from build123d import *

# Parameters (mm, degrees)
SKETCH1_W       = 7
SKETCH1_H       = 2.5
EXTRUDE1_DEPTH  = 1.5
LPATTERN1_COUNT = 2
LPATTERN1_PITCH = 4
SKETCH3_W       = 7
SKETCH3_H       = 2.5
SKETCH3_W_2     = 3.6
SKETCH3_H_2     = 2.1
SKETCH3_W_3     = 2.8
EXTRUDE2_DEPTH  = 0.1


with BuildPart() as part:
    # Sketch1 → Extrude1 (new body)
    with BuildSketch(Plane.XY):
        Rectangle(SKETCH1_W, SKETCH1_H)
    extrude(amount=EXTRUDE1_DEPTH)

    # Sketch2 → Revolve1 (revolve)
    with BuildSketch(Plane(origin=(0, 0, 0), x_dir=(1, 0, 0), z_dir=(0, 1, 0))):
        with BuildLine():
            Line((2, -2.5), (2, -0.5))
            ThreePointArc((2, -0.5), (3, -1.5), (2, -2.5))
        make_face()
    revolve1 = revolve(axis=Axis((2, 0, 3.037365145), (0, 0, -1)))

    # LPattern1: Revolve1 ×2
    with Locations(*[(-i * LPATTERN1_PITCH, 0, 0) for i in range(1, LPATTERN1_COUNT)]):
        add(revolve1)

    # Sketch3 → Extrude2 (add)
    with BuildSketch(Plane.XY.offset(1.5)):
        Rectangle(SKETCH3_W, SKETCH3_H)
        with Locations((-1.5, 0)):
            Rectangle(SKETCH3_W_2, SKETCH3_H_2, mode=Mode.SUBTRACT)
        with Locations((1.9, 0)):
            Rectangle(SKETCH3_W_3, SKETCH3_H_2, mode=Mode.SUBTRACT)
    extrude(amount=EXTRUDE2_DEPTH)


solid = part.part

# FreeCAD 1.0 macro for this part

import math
import FreeCAD as App
import Part
import Sketcher

V = App.Vector
Q = App.Units.Quantity

doc = App.newDocument("Part")
body = doc.addObject("PartDesign::Body", "Body")

sketch1 = body.newObject("Sketcher::SketchObject", "Sketch")
sketch1.AttachmentSupport = (doc.getObject("XY_Plane"), [""])
sketch1.MapMode = "FlatFace"
sketch1.addGeometry(Part.LineSegment(V(-3.5, 1.2, 0), V(-3.5, -1.2, 0)), False)
sketch1.addGeometry(Part.LineSegment(V(-3.5, -1.2, 0), V(3.5, -1.2, 0)), False)
sketch1.addGeometry(Part.LineSegment(V(3.5, -1.2, 0), V(3.5, 1.2, 0)), False)
sketch1.addGeometry(Part.LineSegment(V(3.5, 1.2, 0), V(-3.5, 1.2, 0)), False)
sketch1.addConstraint(Sketcher.Constraint("Coincident", 0, 2, 1, 1))
sketch1.addConstraint(Sketcher.Constraint("Coincident", 1, 2, 2, 1))
sketch1.addConstraint(Sketcher.Constraint("Coincident", 2, 2, 3, 1))
sketch1.addConstraint(Sketcher.Constraint("Coincident", 3, 2, 0, 1))
sketch1.addConstraint(Sketcher.Constraint("Vertical", 0))
sketch1.addConstraint(Sketcher.Constraint("Horizontal", 1))
sketch1.addConstraint(Sketcher.Constraint("Vertical", 2))
sketch1.addConstraint(Sketcher.Constraint("Horizontal", 3))
sketch1.addConstraint(Sketcher.Constraint("Symmetric", 0, 2, 2, 2, -1, 1))
sketch1.addConstraint(Sketcher.Constraint("DistanceX", 1, 1, 1, 2, Q("7 mm")))
sketch1.addConstraint(Sketcher.Constraint("DistanceY", 0, 2, 0, 1, Q("2.5 mm")))
pad1 = body.newObject("PartDesign::Pad", "Pad")
pad1.Profile = sketch1
pad1.Length = 1.5

sketch2 = body.newObject("Sketcher::SketchObject", "Sketch001")
sketch2.AttachmentSupport = (doc.getObject("XZ_Plane"), [""])
sketch2.MapMode = "FlatFace"
sketch2.addGeometry(Part.LineSegment(V(2, 0.5, 0), V(2, 2.5, 0)), False)
sketch2.addGeometry(Part.ArcOfCircle(Part.Circle(V(2, 1.5, 0), V(0, 0, 1), 1), math.radians(-90), math.radians(90)), False)
sketch2.addGeometry(Part.LineSegment(V(2, 2.5, 0), V(2, 0.5, 0)), True)
sketch2.addConstraint(Sketcher.Constraint("Coincident", 0, 1, 1, 1))
sketch2.addConstraint(Sketcher.Constraint("Coincident", 1, 2, 0, 2))
sketch2.addConstraint(Sketcher.Constraint("Vertical", 0))
sketch2.addConstraint(Sketcher.Constraint("Vertical", 2))
sketch2.addConstraint(Sketcher.Constraint("Coincident", 2, 1, 1, 2))
sketch2.addConstraint(Sketcher.Constraint("Vertical", 1, 3, 0, 1))
sketch2.addConstraint(Sketcher.Constraint("Equal", 0, 2))
sketch2.addConstraint(Sketcher.Constraint("Radius", 1, Q("1 mm")))
sketch2.addConstraint(Sketcher.Constraint("DistanceX", -1, 1, 1, 3, Q("2 mm")))
sketch2.addConstraint(Sketcher.Constraint("DistanceY", -1, 1, 1, 3, Q("1.5 mm")))
revolution = body.newObject("PartDesign::Revolution", "Revolution")
revolution.Profile = sketch2
revolution.ReferenceAxis = (sketch2, ["Axis0"])
revolution.Angle = 360
doc.recompute()

linearpattern = body.newObject("PartDesign::LinearPattern", "LinearPattern")
linearpattern.Originals = [revolution]
linearpattern.Direction = (doc.getObject("X_Axis"), [""])
linearpattern.Mode = "offset"
linearpattern.Offset = 4
linearpattern.Occurrences = 2
linearpattern.Reversed = True
body.Tip = linearpattern

sketch3 = body.newObject("Sketcher::SketchObject", "Sketch002")
sketch3.AttachmentSupport = (doc.getObject("XY_Plane"), [""])
sketch3.MapMode = "FlatFace"
sketch3.AttachmentOffset = App.Placement(V(0, 0, 1.5), App.Rotation())
sketch3.addGeometry(Part.LineSegment(V(-3.5, 1.2, 0), V(-3.5, -1.2, 0)), False)
sketch3.addGeometry(Part.LineSegment(V(-3.5, -1.2, 0), V(3.5, -1.2, 0)), False)
sketch3.addGeometry(Part.LineSegment(V(3.5, -1.2, 0), V(3.5, 1.2, 0)), False)
sketch3.addGeometry(Part.LineSegment(V(3.5, 1.2, 0), V(-3.5, 1.2, 0)), False)
sketch3.addGeometry(Part.LineSegment(V(0.3, -1.1, 0), V(-3.3, -1.1, 0)), False)
sketch3.addGeometry(Part.LineSegment(V(-3.3, -1.1, 0), V(-3.3, 1.1, 0)), False)
sketch3.addGeometry(Part.LineSegment(V(-3.3, 1.1, 0), V(0.3, 1.1, 0)), False)
sketch3.addGeometry(Part.LineSegment(V(0.3, 1.1, 0), V(0.3, -1.1, 0)), False)
sketch3.addGeometry(Part.LineSegment(V(3.3, -1.1, 0), V(0.5, -1.1, 0)), False)
sketch3.addGeometry(Part.LineSegment(V(0.5, -1.1, 0), V(0.5, 1.1, 0)), False)
sketch3.addGeometry(Part.LineSegment(V(0.5, 1.1, 0), V(3.3, 1.1, 0)), False)
sketch3.addGeometry(Part.LineSegment(V(3.3, 1.1, 0), V(3.3, -1.1, 0)), False)
sketch3.addConstraint(Sketcher.Constraint("Coincident", 0, 2, 1, 1))
sketch3.addConstraint(Sketcher.Constraint("Coincident", 1, 2, 2, 1))
sketch3.addConstraint(Sketcher.Constraint("Coincident", 2, 2, 3, 1))
sketch3.addConstraint(Sketcher.Constraint("Coincident", 3, 2, 0, 1))
sketch3.addConstraint(Sketcher.Constraint("Coincident", 4, 2, 5, 1))
sketch3.addConstraint(Sketcher.Constraint("Coincident", 5, 2, 6, 1))
sketch3.addConstraint(Sketcher.Constraint("Coincident", 6, 2, 7, 1))
sketch3.addConstraint(Sketcher.Constraint("Coincident", 7, 2, 4, 1))
sketch3.addConstraint(Sketcher.Constraint("Coincident", 8, 2, 9, 1))
sketch3.addConstraint(Sketcher.Constraint("Coincident", 9, 2, 10, 1))
sketch3.addConstraint(Sketcher.Constraint("Coincident", 10, 2, 11, 1))
sketch3.addConstraint(Sketcher.Constraint("Coincident", 11, 2, 8, 1))
sketch3.addConstraint(Sketcher.Constraint("Vertical", 0))
sketch3.addConstraint(Sketcher.Constraint("Horizontal", 1))
sketch3.addConstraint(Sketcher.Constraint("Vertical", 2))
sketch3.addConstraint(Sketcher.Constraint("Horizontal", 3))
sketch3.addConstraint(Sketcher.Constraint("Horizontal", 4))
sketch3.addConstraint(Sketcher.Constraint("Vertical", 5))
sketch3.addConstraint(Sketcher.Constraint("Horizontal", 6))
sketch3.addConstraint(Sketcher.Constraint("Vertical", 7))
sketch3.addConstraint(Sketcher.Constraint("Horizontal", 8))
sketch3.addConstraint(Sketcher.Constraint("Vertical", 9))
sketch3.addConstraint(Sketcher.Constraint("Horizontal", 10))
sketch3.addConstraint(Sketcher.Constraint("Vertical", 11))
sketch3.addConstraint(Sketcher.Constraint("Symmetric", 0, 2, 2, 2, -1, 1))
sketch3.addConstraint(Sketcher.Constraint("Symmetric", 4, 2, 10, 2, -1, 1))
sketch3.addConstraint(Sketcher.Constraint("Horizontal", 7, 2, 8, 2))
sketch3.addConstraint(Sketcher.Constraint("Horizontal", 6, 2, 9, 2))
sketch3.addConstraint(Sketcher.Constraint("DistanceX", 1, 1, 1, 2, Q("7 mm")))
sketch3.addConstraint(Sketcher.Constraint("DistanceX", 4, 2, 4, 1, Q("3.6 mm")))
sketch3.addConstraint(Sketcher.Constraint("DistanceX", 8, 2, 8, 1, Q("2.8 mm")))
sketch3.addConstraint(Sketcher.Constraint("DistanceY", 0, 2, 0, 1, Q("2.5 mm")))
sketch3.addConstraint(Sketcher.Constraint("DistanceY", 5, 1, 5, 2, Q("2.1 mm")))
sketch3.addConstraint(Sketcher.Constraint("DistanceX", 8, 2, 1, 2, Q("3 mm")))
pad2 = body.newObject("PartDesign::Pad", "Pad001")
pad2.Profile = sketch3
pad2.Length = 0.1

doc.recompute()
